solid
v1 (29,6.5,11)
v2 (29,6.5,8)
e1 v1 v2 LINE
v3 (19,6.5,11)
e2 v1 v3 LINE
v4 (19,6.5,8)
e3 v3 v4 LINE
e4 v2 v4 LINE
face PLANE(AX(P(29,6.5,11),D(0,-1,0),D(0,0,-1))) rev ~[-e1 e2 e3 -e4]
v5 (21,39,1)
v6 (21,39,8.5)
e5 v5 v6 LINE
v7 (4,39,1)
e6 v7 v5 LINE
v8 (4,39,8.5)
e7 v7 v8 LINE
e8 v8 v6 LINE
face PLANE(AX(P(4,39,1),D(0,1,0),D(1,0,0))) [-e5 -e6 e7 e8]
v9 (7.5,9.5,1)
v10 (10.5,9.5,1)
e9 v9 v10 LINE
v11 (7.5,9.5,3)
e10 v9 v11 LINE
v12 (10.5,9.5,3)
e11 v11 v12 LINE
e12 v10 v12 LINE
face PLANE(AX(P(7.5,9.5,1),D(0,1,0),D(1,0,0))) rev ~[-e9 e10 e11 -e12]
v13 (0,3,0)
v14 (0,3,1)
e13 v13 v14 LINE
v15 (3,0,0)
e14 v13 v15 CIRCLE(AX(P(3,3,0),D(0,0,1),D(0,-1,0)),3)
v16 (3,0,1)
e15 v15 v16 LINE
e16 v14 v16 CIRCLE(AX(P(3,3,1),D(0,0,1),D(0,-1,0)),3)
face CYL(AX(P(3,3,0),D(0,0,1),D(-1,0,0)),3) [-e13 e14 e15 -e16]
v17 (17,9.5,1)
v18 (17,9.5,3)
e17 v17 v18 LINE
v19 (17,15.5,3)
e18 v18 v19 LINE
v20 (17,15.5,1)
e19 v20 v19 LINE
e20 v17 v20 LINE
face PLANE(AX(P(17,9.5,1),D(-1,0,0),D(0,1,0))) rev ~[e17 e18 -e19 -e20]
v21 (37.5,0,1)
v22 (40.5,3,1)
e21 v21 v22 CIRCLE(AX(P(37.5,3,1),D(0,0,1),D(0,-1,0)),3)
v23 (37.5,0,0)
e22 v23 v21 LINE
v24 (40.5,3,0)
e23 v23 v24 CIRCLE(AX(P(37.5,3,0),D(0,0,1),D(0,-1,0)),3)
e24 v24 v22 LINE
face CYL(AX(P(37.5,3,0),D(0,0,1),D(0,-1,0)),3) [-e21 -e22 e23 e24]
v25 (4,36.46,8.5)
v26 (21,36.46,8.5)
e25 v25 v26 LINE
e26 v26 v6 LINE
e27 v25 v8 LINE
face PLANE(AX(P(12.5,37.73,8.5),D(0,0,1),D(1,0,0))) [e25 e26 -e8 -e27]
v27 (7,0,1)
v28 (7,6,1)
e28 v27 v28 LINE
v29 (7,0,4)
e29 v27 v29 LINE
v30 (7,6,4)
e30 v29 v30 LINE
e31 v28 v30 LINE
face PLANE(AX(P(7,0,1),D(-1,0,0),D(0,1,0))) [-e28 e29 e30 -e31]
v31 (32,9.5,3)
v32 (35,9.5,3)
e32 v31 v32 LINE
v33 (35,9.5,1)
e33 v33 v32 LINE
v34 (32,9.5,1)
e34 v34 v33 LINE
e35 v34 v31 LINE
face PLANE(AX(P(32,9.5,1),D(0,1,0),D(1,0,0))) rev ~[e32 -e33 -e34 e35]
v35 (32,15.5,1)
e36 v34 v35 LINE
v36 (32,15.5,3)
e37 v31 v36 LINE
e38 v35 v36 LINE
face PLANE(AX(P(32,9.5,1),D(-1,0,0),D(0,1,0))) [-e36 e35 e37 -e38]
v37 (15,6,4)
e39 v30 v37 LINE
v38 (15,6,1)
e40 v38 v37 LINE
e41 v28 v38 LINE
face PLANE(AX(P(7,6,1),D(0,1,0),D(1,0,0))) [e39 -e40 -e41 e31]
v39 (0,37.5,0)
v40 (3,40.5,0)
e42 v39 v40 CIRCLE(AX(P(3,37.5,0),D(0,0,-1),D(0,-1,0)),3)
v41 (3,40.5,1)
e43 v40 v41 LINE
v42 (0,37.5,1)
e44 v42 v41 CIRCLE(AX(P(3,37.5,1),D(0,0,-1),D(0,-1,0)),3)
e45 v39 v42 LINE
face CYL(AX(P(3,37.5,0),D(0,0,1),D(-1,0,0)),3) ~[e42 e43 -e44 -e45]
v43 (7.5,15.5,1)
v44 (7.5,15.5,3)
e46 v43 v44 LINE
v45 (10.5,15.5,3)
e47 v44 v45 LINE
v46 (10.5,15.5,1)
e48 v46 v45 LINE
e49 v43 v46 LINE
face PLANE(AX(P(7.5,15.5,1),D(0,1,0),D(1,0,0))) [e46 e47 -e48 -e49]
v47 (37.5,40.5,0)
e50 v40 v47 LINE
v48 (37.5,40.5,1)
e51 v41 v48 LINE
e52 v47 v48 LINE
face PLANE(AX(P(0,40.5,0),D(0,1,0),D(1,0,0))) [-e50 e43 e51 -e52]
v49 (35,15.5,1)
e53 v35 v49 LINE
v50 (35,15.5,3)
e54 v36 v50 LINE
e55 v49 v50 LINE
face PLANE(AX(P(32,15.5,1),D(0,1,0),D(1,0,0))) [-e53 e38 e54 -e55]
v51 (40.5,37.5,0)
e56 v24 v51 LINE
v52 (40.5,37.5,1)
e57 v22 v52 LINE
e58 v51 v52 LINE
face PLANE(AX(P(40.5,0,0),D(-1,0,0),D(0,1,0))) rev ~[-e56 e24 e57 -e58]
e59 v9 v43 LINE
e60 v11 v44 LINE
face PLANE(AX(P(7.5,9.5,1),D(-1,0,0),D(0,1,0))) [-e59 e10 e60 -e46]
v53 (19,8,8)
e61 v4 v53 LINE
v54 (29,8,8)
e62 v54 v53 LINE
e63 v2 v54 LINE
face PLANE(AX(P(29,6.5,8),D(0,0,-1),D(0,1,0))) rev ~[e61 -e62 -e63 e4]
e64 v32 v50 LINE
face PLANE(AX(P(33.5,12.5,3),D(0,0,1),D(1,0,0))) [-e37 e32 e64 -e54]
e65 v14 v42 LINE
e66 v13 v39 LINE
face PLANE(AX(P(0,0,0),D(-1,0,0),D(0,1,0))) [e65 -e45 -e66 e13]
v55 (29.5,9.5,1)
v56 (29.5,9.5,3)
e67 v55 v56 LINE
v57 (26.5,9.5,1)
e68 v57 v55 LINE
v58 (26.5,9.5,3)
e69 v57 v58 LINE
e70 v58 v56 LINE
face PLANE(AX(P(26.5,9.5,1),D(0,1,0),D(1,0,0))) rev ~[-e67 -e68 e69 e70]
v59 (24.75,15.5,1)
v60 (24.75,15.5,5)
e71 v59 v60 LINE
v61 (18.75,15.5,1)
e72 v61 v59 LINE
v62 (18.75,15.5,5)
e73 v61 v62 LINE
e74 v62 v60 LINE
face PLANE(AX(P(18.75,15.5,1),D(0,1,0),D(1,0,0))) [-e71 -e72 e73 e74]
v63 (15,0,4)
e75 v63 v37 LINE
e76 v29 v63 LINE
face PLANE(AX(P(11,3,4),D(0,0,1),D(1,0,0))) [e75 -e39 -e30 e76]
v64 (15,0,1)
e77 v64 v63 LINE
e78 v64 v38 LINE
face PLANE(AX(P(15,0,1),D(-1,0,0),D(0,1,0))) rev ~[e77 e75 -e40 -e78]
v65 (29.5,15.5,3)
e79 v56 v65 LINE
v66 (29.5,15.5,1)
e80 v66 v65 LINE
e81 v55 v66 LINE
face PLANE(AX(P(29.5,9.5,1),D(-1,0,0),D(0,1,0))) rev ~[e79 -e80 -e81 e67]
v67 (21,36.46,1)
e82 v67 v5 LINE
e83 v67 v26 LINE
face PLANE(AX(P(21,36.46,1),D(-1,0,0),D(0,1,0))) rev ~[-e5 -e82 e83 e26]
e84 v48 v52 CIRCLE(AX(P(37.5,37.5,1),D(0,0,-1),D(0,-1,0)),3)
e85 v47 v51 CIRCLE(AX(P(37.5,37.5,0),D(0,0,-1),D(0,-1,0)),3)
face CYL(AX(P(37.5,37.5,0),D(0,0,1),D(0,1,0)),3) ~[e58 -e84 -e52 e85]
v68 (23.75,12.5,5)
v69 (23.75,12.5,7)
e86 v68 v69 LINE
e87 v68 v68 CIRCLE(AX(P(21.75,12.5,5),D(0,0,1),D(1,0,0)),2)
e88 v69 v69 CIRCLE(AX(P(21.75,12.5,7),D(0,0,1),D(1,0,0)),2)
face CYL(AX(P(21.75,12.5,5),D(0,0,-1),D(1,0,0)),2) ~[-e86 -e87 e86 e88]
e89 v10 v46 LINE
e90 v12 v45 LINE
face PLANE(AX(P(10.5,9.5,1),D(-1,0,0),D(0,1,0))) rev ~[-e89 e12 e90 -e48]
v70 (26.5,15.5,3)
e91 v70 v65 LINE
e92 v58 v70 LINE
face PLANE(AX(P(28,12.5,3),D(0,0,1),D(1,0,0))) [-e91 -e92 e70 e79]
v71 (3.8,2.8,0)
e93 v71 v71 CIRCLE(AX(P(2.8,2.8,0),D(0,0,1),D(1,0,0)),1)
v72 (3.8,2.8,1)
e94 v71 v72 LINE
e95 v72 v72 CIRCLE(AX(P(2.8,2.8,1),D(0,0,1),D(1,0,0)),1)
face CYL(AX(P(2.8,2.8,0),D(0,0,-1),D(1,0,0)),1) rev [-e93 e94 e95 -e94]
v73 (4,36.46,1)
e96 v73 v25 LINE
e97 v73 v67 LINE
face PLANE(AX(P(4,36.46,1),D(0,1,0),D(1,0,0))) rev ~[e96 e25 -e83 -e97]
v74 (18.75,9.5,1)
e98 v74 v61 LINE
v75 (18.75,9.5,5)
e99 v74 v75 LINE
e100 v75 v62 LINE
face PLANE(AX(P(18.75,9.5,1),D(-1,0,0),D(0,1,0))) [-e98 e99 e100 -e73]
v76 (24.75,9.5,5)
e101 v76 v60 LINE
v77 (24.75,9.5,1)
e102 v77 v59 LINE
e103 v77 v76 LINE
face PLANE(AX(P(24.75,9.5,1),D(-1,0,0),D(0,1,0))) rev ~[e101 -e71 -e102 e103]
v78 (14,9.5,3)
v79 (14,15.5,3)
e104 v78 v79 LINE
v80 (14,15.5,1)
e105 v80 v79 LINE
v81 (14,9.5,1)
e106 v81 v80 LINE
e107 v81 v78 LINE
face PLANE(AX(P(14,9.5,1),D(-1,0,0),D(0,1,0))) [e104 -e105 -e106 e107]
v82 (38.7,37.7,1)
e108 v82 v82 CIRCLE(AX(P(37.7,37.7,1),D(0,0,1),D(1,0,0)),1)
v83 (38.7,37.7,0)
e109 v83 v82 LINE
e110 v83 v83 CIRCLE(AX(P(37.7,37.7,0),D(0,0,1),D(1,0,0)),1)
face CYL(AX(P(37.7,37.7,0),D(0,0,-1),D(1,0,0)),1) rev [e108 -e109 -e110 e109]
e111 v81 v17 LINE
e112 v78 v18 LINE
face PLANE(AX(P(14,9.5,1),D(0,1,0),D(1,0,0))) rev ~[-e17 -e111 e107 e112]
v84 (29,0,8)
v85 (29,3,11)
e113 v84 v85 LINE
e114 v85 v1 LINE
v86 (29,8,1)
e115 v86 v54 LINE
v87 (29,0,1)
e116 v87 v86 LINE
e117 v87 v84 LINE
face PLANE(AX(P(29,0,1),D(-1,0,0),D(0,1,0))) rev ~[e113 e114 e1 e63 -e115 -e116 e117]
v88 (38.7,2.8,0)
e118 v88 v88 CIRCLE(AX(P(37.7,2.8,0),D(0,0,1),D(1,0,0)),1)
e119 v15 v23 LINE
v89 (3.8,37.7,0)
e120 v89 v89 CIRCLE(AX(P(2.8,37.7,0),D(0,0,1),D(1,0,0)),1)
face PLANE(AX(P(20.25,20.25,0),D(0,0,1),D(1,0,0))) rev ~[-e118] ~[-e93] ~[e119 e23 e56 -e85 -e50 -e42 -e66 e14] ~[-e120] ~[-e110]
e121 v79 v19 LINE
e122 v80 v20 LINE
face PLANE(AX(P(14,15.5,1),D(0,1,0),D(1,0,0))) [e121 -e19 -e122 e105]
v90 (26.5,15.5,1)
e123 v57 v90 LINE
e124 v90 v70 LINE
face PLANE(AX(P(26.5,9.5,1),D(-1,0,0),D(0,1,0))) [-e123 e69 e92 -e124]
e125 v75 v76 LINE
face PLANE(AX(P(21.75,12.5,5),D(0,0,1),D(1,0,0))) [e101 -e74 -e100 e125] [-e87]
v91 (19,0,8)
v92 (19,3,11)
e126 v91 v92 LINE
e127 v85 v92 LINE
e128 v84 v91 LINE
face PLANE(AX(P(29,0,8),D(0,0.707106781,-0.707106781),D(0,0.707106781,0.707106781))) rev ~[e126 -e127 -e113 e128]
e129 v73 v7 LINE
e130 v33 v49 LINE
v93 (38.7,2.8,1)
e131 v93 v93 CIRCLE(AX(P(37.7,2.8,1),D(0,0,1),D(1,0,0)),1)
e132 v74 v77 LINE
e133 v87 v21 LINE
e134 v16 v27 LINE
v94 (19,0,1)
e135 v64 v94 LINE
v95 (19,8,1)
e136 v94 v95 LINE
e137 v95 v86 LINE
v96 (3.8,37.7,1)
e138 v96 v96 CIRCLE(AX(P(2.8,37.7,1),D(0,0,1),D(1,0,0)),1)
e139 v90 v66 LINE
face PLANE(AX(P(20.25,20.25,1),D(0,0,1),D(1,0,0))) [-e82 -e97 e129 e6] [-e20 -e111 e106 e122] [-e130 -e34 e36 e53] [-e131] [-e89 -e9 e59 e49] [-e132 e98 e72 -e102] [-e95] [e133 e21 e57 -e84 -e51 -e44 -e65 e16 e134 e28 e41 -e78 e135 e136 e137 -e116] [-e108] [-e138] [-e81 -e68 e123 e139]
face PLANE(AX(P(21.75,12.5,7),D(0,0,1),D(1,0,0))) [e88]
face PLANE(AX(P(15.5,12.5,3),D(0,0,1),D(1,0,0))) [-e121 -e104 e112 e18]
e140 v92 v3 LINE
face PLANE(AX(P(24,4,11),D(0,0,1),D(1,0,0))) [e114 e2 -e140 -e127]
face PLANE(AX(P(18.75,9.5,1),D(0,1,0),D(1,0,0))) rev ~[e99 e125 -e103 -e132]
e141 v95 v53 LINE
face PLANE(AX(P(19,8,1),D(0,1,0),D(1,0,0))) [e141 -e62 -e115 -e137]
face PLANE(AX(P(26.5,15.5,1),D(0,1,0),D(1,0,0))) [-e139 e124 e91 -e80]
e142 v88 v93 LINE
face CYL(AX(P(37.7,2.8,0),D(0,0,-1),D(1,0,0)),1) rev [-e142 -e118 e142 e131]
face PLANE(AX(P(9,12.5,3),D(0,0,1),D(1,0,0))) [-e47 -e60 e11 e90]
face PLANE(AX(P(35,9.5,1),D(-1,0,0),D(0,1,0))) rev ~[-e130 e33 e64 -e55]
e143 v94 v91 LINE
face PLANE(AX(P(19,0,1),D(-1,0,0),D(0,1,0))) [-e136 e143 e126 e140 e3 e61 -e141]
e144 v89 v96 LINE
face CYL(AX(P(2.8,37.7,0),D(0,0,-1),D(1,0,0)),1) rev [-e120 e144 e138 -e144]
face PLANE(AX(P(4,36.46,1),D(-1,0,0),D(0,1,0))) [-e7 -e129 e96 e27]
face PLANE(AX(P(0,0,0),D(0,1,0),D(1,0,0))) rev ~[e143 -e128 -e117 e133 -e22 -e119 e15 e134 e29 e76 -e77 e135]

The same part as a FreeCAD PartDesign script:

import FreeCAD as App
import Part
import Sketcher


def edges_at(feature, points):
    """Names of the edges that pass closest to the given points."""
    edges = feature.Shape.Edges
    near = lambda p: min(range(len(edges)), key=lambda i: edges[i].distToShape(Part.Vertex(*p))[0])
    return sorted({f"Edge{near(p) + 1}" for p in points})


def add_polygon(sketch, points):
    """Adds a closed chain of lines whose ends are joined by coincident constraints."""
    first, n = sketch.GeometryCount, len(points)
    for a, b in zip(points, points[1:] + points[:1]):
        sketch.addGeometry(Part.LineSegment(App.Vector(*a, 0), App.Vector(*b, 0)), False)
    for i in range(n):
        sketch.addConstraint(Sketcher.Constraint("Coincident", first + i, 2, first + (i + 1) % n, 1))

doc = App.newDocument("Part")
body = doc.addObject("PartDesign::Body", "Body")

# Sketch on XY plane
sketch1 = doc.addObject("Sketcher::SketchObject", "Sketch")
body.addObject(sketch1)
sketch1.AttachmentSupport = (doc.XY_Plane, [""])
sketch1.MapMode = "FlatFace"
add_polygon(sketch1, [(0, 40.5), (0, 0), (40.5, 0), (40.5, 40.5)])  # lines 0-3
sketch1.addGeometry(Part.Circle(App.Vector(2.8, 2.8, 0), App.Vector(0, 0, 1), 1), False)  # 4
sketch1.addGeometry(Part.Circle(App.Vector(37.7, 2.8, 0), App.Vector(0, 0, 1), 1), False)  # 5
sketch1.addGeometry(Part.Circle(App.Vector(2.8, 37.7, 0), App.Vector(0, 0, 1), 1), False)  # 6
sketch1.addGeometry(Part.Circle(App.Vector(37.7, 37.7, 0), App.Vector(0, 0, 1), 1), False)  # 7
sketch1.addConstraint([
    Sketcher.Constraint("Vertical", 0),
    Sketcher.Constraint("Horizontal", 1),
    Sketcher.Constraint("Vertical", 2),
    Sketcher.Constraint("Horizontal", 3),
    Sketcher.Constraint("Coincident", 0, 2, -1, 1),
    Sketcher.Constraint("Equal", 4, 5),
    Sketcher.Constraint("Equal", 5, 6),
    Sketcher.Constraint("Equal", 6, 7),
    Sketcher.Constraint("Horizontal", 4, 3, 5, 3),
    Sketcher.Constraint("Horizontal", 6, 3, 7, 3),
    Sketcher.Constraint("Vertical", 4, 3, 6, 3),
    Sketcher.Constraint("Vertical", 5, 3, 7, 3),
    Sketcher.Constraint("Equal", 3, 0),
    Sketcher.Constraint("Diameter", 4, 2.0),
    Sketcher.Constraint("DistanceX", 1, 1, 1, 2, 40.5),
    Sketcher.Constraint("DistanceX", -1, 1, 4, 3, 2.8),
    Sketcher.Constraint("DistanceY", -1, 1, 4, 3, 2.8),
    Sketcher.Constraint("DistanceX", -1, 1, 5, 3, 37.7),
    Sketcher.Constraint("DistanceY", -1, 1, 6, 3, 37.7),
])
pad1 = doc.addObject("PartDesign::Pad", "Pad")
body.addObject(pad1)
pad1.Profile = sketch1
pad1.Length = 1
doc.recompute()

fillet = doc.addObject("PartDesign::Fillet", "Fillet")
body.addObject(fillet)
fillet.Base = (pad1, edges_at(pad1, [
    (0, 40.5, 0.5),
    (40.5, 40.5, 0.5),
    (40.5, 0, 0.5),
    (0, 0, 0.5),
]))
fillet.Radius = 3

# Sketch on XY plane
sketch2 = doc.addObject("Sketcher::SketchObject", "Sketch001")
body.addObject(sketch2)
sketch2.AttachmentSupport = (doc.XY_Plane, [""])
sketch2.MapMode = "FlatFace"
sketch2.AttachmentOffset = App.Placement(App.Vector(0, 0, 1), App.Rotation())
add_polygon(sketch2, [(19, 8), (19, 0), (29, 0), (29, 8)])  # lines 0-3
sketch2.addConstraint([
    Sketcher.Constraint("Vertical", 0),
    Sketcher.Constraint("Horizontal", 1),
    Sketcher.Constraint("Vertical", 2),
    Sketcher.Constraint("Horizontal", 3),
    Sketcher.Constraint("PointOnObject", 0, 2, -1),
    Sketcher.Constraint("DistanceX", 1, 1, 1, 2, 10.0),
    Sketcher.Constraint("DistanceY", 0, 2, 0, 1, 8.0),
    Sketcher.Constraint("DistanceX", -1, 1, 0, 2, 19.0),
])
pad2 = doc.addObject("PartDesign::Pad", "Pad001")
body.addObject(pad2)
pad2.Profile = sketch2
pad2.Length = 10

# Sketch on YZ plane
sketch3 = doc.addObject("Sketcher::SketchObject", "Sketch002")
body.addObject(sketch3)
sketch3.AttachmentSupport = (doc.YZ_Plane, [""])
sketch3.MapMode = "FlatFace"
sketch3.AttachmentOffset = App.Placement(App.Vector(0, 0, 29), App.Rotation())
add_polygon(sketch3, [(0, 8), (3, 11), (0, 11)])  # lines 0-2
add_polygon(sketch3, [(8, 11), (6.5, 11), (6.5, 8), (8, 8)])  # lines 3-6
sketch3.addConstraint([
    Sketcher.Constraint("Horizontal", 1),
    Sketcher.Constraint("Vertical", 2),
    Sketcher.Constraint("Horizontal", 3),
    Sketcher.Constraint("Vertical", 4),
    Sketcher.Constraint("Horizontal", 5),
    Sketcher.Constraint("Vertical", 6),
    Sketcher.Constraint("PointOnObject", 1, 2, -2),
    Sketcher.Constraint("Horizontal", 1, 2, 3, 2),
    Sketcher.Constraint("Horizontal", 2, 2, 4, 2),
    Sketcher.Constraint("Equal", 1, 2),
    Sketcher.Constraint("DistanceX", 1, 2, 1, 1, 3.0),
    Sketcher.Constraint("DistanceX", 3, 2, 3, 1, 1.5),
    Sketcher.Constraint("DistanceY", -1, 1, 0, 2, 11.0),
    Sketcher.Constraint("DistanceX", -1, 1, 5, 2, 8.0),
])
pocket1 = doc.addObject("PartDesign::Pocket", "Pocket")
body.addObject(pocket1)
pocket1.Profile = sketch3
pocket1.Length = 10

# Sketch on XY plane
sketch4 = doc.addObject("Sketcher::SketchObject", "Sketch003")
body.addObject(sketch4)
sketch4.AttachmentSupport = (doc.XY_Plane, [""])
sketch4.MapMode = "FlatFace"
sketch4.AttachmentOffset = App.Placement(App.Vector(0, 0, 1), App.Rotation())
add_polygon(sketch4, [(7, 6), (7, 0), (15, 0), (15, 6)])  # lines 0-3
sketch4.addConstraint([
    Sketcher.Constraint("Vertical", 0),
    Sketcher.Constraint("Horizontal", 1),
    Sketcher.Constraint("Vertical", 2),
    Sketcher.Constraint("Horizontal", 3),
    Sketcher.Constraint("PointOnObject", 0, 2, -1),
    Sketcher.Constraint("DistanceX", 1, 1, 1, 2, 8.0),
    Sketcher.Constraint("DistanceY", 0, 2, 0, 1, 6.0),
    Sketcher.Constraint("DistanceX", -1, 1, 0, 2, 7.0),
])
pad3 = doc.addObject("PartDesign::Pad", "Pad002")
body.addObject(pad3)
pad3.Profile = sketch4
pad3.Length = 3

# Sketch on XY plane
sketch5 = doc.addObject("Sketcher::SketchObject", "Sketch004")
body.addObject(sketch5)
sketch5.AttachmentSupport = (doc.XY_Plane, [""])
sketch5.MapMode = "FlatFace"
sketch5.AttachmentOffset = App.Placement(App.Vector(0, 0, 1), App.Rotation())
add_polygon(sketch5, [(7.5, 15.5), (7.5, 9.5), (10.5, 9.5), (10.5, 15.5)])  # lines 0-3
add_polygon(sketch5, [(14, 15.5), (14, 9.5), (17, 9.5), (17, 15.5)])  # lines 4-7
add_polygon(sketch5, [(26.5, 15.5), (26.5, 9.5), (29.5, 9.5), (29.5, 15.5)])  # lines 8-11
add_polygon(sketch5, [(32, 15.5), (32, 9.5), (35, 9.5), (35, 15.5)])  # lines 12-15
sketch5.addConstraint([
    Sketcher.Constraint("Vertical", 0),
    Sketcher.Constraint("Horizontal", 1),
    Sketcher.Constraint("Vertical", 2),
    Sketcher.Constraint("Horizontal", 3),
    Sketcher.Constraint("Vertical", 4),
    Sketcher.Constraint("Horizontal", 5),
    Sketcher.Constraint("Vertical", 6),
    Sketcher.Constraint("Horizontal", 7),
    Sketcher.Constraint("Vertical", 8),
    Sketcher.Constraint("Horizontal", 9),
    Sketcher.Constraint("Vertical", 10),
    Sketcher.Constraint("Horizontal", 11),
    Sketcher.Constraint("Vertical", 12),
    Sketcher.Constraint("Horizontal", 13),
    Sketcher.Constraint("Vertical", 14),
    Sketcher.Constraint("Horizontal", 15),
    Sketcher.Constraint("Horizontal", 1, 2, 4, 2),
    Sketcher.Constraint("Horizontal", 3, 2, 6, 2),
    Sketcher.Constraint("Horizontal", 5, 2, 8, 2),
    Sketcher.Constraint("Horizontal", 7, 2, 10, 2),
    Sketcher.Constraint("Horizontal", 9, 2, 12, 2),
    Sketcher.Constraint("Horizontal", 11, 2, 14, 2),
    Sketcher.Constraint("Equal", 3, 5),
    Sketcher.Constraint("Equal", 7, 9),
    Sketcher.Constraint("Equal", 11, 13),
    Sketcher.Constraint("DistanceX", 1, 1, 1, 2, 3.0),
    Sketcher.Constraint("DistanceY", 0, 2, 0, 1, 6.0),
    Sketcher.Constraint("DistanceX", -1, 1, 4, 2, 14.0),
    Sketcher.Constraint("DistanceX", -1, 1, 12, 2, 32.0),
    Sketcher.Constraint("DistanceX", 1, 2, 8, 2, 16.0),
    Sketcher.Constraint("DistanceX", -1, 1, 0, 2, 7.5),
    Sketcher.Constraint("DistanceY", -1, 1, 0, 2, 9.5),
])
pad4 = doc.addObject("PartDesign::Pad", "Pad003")
body.addObject(pad4)
pad4.Profile = sketch5
pad4.Length = 2

# Sketch on XY plane
sketch6 = doc.addObject("Sketcher::SketchObject", "Sketch005")
body.addObject(sketch6)
sketch6.AttachmentSupport = (doc.XY_Plane, [""])
sketch6.MapMode = "FlatFace"
sketch6.AttachmentOffset = App.Placement(App.Vector(0, 0, 1), App.Rotation())
add_polygon(sketch6, [(19, 16), (19, 10), (25, 10), (25, 16)])  # lines 0-3
sketch6.addConstraint([
    Sketcher.Constraint("Vertical", 0),
    Sketcher.Constraint("Horizontal", 1),
    Sketcher.Constraint("Vertical", 2),
    Sketcher.Constraint("Horizontal", 3),
    Sketcher.Constraint("Equal", 3, 0),
    Sketcher.Constraint("DistanceX", 1, 1, 1, 2, 6.0),
    Sketcher.Constraint("DistanceY", -1, 1, 0, 2, 9.5),
    Sketcher.Constraint("DistanceX", -1, 1, 0, 2, 18.75),
])
pad5 = doc.addObject("PartDesign::Pad", "Pad004")
body.addObject(pad5)
pad5.Profile = sketch6
pad5.Length = 4

# Sketch on XY plane
sketch7 = doc.addObject("Sketcher::SketchObject", "Sketch006")
body.addObject(sketch7)
sketch7.AttachmentSupport = (doc.XY_Plane, [""])
sketch7.MapMode = "FlatFace"
sketch7.AttachmentOffset = App.Placement(App.Vector(0, 0, 5), App.Rotation())
sketch7.addGeometry(Part.Circle(App.Vector(21.8, 12.5, 0), App.Vector(0, 0, 1), 2), False)
sketch7.addConstraint([
    Sketcher.Constraint("Diameter", 0, 4.0),
    Sketcher.Constraint("DistanceY", -1, 1, 0, 3, 12.5),
    Sketcher.Constraint("DistanceX", -1, 1, 0, 3, 21.75),
])
pad6 = doc.addObject("PartDesign::Pad", "Pad005")
body.addObject(pad6)
pad6.Profile = sketch7
pad6.Length = 2

# Sketch on XY plane
sketch8 = doc.addObject("Sketcher::SketchObject", "Sketch007")
body.addObject(sketch8)
sketch8.AttachmentSupport = (doc.XY_Plane, [""])
sketch8.MapMode = "FlatFace"
sketch8.AttachmentOffset = App.Placement(App.Vector(0, 0, 1), App.Rotation())
add_polygon(sketch8, [(4, 39), (4, 36.5), (21, 36.5), (21, 39)])  # lines 0-3
sketch8.addConstraint([
    Sketcher.Constraint("Vertical", 0),
    Sketcher.Constraint("Horizontal", 1),
    Sketcher.Constraint("Vertical", 2),
    Sketcher.Constraint("Horizontal", 3),
    Sketcher.Constraint("DistanceX", 1, 1, 1, 2, 17.0),
    Sketcher.Constraint("DistanceX", -1, 1, 0, 2, 4.0),
    Sketcher.Constraint("DistanceY", -1, 1, 2, 2, 39.0),
    Sketcher.Constraint("DistanceY", 0, 2, 0, 1, 2.54),
])
pad7 = doc.addObject("PartDesign::Pad", "Pad006")
body.addObject(pad7)
pad7.Profile = sketch8
pad7.Length = 7.5

doc.recompute()
